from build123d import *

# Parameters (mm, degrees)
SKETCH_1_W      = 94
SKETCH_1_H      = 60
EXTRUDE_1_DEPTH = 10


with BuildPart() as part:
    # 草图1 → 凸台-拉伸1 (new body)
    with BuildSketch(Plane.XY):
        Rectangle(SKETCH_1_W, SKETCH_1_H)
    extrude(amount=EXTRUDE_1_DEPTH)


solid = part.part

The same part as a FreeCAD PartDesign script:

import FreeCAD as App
import Part
import Sketcher

V = App.Vector
Q = App.Units.Quantity


def add_polygon(sketch, points):
    """Adds a closed chain of lines whose ends are joined by coincident constraints."""
    first, n = sketch.GeometryCount, len(points)
    for a, b in zip(points, points[1:] + points[:1]):
        sketch.addGeometry(Part.LineSegment(App.Vector(*a, 0), App.Vector(*b, 0)), False)
    for i in range(n):
        sketch.addConstraint(Sketcher.Constraint("Coincident", first + i, 2, first + (i + 1) % n, 1))

doc = App.newDocument("Part")
body = doc.addObject("PartDesign::Body", "Body")

sketch1 = body.newObject("Sketcher::SketchObject", "Sketch")
sketch1.AttachmentSupport = (doc.getObject("XY_Plane"), [""])
sketch1.MapMode = "FlatFace"
add_polygon(sketch1, [(-47, 30), (-47, -30), (47, -30), (47, 30)])
sketch1.addConstraint([
    Sketcher.Constraint("Vertical", 0),
    Sketcher.Constraint("Horizontal", 1),
    Sketcher.Constraint("Vertical", 2),
    Sketcher.Constraint("Horizontal", 3),
    Sketcher.Constraint("Symmetric", 0, 2, 2, 2, -1, 1),
    Sketcher.Constraint("DistanceX", 1, 1, 1, 2, Q("94 mm")),
    Sketcher.Constraint("DistanceY", 0, 2, 0, 1, Q("60 mm")),
])
pad1 = body.newObject("PartDesign::Pad", "Pad")
pad1.Profile = sketch1
pad1.Length = 10

doc.recompute()
